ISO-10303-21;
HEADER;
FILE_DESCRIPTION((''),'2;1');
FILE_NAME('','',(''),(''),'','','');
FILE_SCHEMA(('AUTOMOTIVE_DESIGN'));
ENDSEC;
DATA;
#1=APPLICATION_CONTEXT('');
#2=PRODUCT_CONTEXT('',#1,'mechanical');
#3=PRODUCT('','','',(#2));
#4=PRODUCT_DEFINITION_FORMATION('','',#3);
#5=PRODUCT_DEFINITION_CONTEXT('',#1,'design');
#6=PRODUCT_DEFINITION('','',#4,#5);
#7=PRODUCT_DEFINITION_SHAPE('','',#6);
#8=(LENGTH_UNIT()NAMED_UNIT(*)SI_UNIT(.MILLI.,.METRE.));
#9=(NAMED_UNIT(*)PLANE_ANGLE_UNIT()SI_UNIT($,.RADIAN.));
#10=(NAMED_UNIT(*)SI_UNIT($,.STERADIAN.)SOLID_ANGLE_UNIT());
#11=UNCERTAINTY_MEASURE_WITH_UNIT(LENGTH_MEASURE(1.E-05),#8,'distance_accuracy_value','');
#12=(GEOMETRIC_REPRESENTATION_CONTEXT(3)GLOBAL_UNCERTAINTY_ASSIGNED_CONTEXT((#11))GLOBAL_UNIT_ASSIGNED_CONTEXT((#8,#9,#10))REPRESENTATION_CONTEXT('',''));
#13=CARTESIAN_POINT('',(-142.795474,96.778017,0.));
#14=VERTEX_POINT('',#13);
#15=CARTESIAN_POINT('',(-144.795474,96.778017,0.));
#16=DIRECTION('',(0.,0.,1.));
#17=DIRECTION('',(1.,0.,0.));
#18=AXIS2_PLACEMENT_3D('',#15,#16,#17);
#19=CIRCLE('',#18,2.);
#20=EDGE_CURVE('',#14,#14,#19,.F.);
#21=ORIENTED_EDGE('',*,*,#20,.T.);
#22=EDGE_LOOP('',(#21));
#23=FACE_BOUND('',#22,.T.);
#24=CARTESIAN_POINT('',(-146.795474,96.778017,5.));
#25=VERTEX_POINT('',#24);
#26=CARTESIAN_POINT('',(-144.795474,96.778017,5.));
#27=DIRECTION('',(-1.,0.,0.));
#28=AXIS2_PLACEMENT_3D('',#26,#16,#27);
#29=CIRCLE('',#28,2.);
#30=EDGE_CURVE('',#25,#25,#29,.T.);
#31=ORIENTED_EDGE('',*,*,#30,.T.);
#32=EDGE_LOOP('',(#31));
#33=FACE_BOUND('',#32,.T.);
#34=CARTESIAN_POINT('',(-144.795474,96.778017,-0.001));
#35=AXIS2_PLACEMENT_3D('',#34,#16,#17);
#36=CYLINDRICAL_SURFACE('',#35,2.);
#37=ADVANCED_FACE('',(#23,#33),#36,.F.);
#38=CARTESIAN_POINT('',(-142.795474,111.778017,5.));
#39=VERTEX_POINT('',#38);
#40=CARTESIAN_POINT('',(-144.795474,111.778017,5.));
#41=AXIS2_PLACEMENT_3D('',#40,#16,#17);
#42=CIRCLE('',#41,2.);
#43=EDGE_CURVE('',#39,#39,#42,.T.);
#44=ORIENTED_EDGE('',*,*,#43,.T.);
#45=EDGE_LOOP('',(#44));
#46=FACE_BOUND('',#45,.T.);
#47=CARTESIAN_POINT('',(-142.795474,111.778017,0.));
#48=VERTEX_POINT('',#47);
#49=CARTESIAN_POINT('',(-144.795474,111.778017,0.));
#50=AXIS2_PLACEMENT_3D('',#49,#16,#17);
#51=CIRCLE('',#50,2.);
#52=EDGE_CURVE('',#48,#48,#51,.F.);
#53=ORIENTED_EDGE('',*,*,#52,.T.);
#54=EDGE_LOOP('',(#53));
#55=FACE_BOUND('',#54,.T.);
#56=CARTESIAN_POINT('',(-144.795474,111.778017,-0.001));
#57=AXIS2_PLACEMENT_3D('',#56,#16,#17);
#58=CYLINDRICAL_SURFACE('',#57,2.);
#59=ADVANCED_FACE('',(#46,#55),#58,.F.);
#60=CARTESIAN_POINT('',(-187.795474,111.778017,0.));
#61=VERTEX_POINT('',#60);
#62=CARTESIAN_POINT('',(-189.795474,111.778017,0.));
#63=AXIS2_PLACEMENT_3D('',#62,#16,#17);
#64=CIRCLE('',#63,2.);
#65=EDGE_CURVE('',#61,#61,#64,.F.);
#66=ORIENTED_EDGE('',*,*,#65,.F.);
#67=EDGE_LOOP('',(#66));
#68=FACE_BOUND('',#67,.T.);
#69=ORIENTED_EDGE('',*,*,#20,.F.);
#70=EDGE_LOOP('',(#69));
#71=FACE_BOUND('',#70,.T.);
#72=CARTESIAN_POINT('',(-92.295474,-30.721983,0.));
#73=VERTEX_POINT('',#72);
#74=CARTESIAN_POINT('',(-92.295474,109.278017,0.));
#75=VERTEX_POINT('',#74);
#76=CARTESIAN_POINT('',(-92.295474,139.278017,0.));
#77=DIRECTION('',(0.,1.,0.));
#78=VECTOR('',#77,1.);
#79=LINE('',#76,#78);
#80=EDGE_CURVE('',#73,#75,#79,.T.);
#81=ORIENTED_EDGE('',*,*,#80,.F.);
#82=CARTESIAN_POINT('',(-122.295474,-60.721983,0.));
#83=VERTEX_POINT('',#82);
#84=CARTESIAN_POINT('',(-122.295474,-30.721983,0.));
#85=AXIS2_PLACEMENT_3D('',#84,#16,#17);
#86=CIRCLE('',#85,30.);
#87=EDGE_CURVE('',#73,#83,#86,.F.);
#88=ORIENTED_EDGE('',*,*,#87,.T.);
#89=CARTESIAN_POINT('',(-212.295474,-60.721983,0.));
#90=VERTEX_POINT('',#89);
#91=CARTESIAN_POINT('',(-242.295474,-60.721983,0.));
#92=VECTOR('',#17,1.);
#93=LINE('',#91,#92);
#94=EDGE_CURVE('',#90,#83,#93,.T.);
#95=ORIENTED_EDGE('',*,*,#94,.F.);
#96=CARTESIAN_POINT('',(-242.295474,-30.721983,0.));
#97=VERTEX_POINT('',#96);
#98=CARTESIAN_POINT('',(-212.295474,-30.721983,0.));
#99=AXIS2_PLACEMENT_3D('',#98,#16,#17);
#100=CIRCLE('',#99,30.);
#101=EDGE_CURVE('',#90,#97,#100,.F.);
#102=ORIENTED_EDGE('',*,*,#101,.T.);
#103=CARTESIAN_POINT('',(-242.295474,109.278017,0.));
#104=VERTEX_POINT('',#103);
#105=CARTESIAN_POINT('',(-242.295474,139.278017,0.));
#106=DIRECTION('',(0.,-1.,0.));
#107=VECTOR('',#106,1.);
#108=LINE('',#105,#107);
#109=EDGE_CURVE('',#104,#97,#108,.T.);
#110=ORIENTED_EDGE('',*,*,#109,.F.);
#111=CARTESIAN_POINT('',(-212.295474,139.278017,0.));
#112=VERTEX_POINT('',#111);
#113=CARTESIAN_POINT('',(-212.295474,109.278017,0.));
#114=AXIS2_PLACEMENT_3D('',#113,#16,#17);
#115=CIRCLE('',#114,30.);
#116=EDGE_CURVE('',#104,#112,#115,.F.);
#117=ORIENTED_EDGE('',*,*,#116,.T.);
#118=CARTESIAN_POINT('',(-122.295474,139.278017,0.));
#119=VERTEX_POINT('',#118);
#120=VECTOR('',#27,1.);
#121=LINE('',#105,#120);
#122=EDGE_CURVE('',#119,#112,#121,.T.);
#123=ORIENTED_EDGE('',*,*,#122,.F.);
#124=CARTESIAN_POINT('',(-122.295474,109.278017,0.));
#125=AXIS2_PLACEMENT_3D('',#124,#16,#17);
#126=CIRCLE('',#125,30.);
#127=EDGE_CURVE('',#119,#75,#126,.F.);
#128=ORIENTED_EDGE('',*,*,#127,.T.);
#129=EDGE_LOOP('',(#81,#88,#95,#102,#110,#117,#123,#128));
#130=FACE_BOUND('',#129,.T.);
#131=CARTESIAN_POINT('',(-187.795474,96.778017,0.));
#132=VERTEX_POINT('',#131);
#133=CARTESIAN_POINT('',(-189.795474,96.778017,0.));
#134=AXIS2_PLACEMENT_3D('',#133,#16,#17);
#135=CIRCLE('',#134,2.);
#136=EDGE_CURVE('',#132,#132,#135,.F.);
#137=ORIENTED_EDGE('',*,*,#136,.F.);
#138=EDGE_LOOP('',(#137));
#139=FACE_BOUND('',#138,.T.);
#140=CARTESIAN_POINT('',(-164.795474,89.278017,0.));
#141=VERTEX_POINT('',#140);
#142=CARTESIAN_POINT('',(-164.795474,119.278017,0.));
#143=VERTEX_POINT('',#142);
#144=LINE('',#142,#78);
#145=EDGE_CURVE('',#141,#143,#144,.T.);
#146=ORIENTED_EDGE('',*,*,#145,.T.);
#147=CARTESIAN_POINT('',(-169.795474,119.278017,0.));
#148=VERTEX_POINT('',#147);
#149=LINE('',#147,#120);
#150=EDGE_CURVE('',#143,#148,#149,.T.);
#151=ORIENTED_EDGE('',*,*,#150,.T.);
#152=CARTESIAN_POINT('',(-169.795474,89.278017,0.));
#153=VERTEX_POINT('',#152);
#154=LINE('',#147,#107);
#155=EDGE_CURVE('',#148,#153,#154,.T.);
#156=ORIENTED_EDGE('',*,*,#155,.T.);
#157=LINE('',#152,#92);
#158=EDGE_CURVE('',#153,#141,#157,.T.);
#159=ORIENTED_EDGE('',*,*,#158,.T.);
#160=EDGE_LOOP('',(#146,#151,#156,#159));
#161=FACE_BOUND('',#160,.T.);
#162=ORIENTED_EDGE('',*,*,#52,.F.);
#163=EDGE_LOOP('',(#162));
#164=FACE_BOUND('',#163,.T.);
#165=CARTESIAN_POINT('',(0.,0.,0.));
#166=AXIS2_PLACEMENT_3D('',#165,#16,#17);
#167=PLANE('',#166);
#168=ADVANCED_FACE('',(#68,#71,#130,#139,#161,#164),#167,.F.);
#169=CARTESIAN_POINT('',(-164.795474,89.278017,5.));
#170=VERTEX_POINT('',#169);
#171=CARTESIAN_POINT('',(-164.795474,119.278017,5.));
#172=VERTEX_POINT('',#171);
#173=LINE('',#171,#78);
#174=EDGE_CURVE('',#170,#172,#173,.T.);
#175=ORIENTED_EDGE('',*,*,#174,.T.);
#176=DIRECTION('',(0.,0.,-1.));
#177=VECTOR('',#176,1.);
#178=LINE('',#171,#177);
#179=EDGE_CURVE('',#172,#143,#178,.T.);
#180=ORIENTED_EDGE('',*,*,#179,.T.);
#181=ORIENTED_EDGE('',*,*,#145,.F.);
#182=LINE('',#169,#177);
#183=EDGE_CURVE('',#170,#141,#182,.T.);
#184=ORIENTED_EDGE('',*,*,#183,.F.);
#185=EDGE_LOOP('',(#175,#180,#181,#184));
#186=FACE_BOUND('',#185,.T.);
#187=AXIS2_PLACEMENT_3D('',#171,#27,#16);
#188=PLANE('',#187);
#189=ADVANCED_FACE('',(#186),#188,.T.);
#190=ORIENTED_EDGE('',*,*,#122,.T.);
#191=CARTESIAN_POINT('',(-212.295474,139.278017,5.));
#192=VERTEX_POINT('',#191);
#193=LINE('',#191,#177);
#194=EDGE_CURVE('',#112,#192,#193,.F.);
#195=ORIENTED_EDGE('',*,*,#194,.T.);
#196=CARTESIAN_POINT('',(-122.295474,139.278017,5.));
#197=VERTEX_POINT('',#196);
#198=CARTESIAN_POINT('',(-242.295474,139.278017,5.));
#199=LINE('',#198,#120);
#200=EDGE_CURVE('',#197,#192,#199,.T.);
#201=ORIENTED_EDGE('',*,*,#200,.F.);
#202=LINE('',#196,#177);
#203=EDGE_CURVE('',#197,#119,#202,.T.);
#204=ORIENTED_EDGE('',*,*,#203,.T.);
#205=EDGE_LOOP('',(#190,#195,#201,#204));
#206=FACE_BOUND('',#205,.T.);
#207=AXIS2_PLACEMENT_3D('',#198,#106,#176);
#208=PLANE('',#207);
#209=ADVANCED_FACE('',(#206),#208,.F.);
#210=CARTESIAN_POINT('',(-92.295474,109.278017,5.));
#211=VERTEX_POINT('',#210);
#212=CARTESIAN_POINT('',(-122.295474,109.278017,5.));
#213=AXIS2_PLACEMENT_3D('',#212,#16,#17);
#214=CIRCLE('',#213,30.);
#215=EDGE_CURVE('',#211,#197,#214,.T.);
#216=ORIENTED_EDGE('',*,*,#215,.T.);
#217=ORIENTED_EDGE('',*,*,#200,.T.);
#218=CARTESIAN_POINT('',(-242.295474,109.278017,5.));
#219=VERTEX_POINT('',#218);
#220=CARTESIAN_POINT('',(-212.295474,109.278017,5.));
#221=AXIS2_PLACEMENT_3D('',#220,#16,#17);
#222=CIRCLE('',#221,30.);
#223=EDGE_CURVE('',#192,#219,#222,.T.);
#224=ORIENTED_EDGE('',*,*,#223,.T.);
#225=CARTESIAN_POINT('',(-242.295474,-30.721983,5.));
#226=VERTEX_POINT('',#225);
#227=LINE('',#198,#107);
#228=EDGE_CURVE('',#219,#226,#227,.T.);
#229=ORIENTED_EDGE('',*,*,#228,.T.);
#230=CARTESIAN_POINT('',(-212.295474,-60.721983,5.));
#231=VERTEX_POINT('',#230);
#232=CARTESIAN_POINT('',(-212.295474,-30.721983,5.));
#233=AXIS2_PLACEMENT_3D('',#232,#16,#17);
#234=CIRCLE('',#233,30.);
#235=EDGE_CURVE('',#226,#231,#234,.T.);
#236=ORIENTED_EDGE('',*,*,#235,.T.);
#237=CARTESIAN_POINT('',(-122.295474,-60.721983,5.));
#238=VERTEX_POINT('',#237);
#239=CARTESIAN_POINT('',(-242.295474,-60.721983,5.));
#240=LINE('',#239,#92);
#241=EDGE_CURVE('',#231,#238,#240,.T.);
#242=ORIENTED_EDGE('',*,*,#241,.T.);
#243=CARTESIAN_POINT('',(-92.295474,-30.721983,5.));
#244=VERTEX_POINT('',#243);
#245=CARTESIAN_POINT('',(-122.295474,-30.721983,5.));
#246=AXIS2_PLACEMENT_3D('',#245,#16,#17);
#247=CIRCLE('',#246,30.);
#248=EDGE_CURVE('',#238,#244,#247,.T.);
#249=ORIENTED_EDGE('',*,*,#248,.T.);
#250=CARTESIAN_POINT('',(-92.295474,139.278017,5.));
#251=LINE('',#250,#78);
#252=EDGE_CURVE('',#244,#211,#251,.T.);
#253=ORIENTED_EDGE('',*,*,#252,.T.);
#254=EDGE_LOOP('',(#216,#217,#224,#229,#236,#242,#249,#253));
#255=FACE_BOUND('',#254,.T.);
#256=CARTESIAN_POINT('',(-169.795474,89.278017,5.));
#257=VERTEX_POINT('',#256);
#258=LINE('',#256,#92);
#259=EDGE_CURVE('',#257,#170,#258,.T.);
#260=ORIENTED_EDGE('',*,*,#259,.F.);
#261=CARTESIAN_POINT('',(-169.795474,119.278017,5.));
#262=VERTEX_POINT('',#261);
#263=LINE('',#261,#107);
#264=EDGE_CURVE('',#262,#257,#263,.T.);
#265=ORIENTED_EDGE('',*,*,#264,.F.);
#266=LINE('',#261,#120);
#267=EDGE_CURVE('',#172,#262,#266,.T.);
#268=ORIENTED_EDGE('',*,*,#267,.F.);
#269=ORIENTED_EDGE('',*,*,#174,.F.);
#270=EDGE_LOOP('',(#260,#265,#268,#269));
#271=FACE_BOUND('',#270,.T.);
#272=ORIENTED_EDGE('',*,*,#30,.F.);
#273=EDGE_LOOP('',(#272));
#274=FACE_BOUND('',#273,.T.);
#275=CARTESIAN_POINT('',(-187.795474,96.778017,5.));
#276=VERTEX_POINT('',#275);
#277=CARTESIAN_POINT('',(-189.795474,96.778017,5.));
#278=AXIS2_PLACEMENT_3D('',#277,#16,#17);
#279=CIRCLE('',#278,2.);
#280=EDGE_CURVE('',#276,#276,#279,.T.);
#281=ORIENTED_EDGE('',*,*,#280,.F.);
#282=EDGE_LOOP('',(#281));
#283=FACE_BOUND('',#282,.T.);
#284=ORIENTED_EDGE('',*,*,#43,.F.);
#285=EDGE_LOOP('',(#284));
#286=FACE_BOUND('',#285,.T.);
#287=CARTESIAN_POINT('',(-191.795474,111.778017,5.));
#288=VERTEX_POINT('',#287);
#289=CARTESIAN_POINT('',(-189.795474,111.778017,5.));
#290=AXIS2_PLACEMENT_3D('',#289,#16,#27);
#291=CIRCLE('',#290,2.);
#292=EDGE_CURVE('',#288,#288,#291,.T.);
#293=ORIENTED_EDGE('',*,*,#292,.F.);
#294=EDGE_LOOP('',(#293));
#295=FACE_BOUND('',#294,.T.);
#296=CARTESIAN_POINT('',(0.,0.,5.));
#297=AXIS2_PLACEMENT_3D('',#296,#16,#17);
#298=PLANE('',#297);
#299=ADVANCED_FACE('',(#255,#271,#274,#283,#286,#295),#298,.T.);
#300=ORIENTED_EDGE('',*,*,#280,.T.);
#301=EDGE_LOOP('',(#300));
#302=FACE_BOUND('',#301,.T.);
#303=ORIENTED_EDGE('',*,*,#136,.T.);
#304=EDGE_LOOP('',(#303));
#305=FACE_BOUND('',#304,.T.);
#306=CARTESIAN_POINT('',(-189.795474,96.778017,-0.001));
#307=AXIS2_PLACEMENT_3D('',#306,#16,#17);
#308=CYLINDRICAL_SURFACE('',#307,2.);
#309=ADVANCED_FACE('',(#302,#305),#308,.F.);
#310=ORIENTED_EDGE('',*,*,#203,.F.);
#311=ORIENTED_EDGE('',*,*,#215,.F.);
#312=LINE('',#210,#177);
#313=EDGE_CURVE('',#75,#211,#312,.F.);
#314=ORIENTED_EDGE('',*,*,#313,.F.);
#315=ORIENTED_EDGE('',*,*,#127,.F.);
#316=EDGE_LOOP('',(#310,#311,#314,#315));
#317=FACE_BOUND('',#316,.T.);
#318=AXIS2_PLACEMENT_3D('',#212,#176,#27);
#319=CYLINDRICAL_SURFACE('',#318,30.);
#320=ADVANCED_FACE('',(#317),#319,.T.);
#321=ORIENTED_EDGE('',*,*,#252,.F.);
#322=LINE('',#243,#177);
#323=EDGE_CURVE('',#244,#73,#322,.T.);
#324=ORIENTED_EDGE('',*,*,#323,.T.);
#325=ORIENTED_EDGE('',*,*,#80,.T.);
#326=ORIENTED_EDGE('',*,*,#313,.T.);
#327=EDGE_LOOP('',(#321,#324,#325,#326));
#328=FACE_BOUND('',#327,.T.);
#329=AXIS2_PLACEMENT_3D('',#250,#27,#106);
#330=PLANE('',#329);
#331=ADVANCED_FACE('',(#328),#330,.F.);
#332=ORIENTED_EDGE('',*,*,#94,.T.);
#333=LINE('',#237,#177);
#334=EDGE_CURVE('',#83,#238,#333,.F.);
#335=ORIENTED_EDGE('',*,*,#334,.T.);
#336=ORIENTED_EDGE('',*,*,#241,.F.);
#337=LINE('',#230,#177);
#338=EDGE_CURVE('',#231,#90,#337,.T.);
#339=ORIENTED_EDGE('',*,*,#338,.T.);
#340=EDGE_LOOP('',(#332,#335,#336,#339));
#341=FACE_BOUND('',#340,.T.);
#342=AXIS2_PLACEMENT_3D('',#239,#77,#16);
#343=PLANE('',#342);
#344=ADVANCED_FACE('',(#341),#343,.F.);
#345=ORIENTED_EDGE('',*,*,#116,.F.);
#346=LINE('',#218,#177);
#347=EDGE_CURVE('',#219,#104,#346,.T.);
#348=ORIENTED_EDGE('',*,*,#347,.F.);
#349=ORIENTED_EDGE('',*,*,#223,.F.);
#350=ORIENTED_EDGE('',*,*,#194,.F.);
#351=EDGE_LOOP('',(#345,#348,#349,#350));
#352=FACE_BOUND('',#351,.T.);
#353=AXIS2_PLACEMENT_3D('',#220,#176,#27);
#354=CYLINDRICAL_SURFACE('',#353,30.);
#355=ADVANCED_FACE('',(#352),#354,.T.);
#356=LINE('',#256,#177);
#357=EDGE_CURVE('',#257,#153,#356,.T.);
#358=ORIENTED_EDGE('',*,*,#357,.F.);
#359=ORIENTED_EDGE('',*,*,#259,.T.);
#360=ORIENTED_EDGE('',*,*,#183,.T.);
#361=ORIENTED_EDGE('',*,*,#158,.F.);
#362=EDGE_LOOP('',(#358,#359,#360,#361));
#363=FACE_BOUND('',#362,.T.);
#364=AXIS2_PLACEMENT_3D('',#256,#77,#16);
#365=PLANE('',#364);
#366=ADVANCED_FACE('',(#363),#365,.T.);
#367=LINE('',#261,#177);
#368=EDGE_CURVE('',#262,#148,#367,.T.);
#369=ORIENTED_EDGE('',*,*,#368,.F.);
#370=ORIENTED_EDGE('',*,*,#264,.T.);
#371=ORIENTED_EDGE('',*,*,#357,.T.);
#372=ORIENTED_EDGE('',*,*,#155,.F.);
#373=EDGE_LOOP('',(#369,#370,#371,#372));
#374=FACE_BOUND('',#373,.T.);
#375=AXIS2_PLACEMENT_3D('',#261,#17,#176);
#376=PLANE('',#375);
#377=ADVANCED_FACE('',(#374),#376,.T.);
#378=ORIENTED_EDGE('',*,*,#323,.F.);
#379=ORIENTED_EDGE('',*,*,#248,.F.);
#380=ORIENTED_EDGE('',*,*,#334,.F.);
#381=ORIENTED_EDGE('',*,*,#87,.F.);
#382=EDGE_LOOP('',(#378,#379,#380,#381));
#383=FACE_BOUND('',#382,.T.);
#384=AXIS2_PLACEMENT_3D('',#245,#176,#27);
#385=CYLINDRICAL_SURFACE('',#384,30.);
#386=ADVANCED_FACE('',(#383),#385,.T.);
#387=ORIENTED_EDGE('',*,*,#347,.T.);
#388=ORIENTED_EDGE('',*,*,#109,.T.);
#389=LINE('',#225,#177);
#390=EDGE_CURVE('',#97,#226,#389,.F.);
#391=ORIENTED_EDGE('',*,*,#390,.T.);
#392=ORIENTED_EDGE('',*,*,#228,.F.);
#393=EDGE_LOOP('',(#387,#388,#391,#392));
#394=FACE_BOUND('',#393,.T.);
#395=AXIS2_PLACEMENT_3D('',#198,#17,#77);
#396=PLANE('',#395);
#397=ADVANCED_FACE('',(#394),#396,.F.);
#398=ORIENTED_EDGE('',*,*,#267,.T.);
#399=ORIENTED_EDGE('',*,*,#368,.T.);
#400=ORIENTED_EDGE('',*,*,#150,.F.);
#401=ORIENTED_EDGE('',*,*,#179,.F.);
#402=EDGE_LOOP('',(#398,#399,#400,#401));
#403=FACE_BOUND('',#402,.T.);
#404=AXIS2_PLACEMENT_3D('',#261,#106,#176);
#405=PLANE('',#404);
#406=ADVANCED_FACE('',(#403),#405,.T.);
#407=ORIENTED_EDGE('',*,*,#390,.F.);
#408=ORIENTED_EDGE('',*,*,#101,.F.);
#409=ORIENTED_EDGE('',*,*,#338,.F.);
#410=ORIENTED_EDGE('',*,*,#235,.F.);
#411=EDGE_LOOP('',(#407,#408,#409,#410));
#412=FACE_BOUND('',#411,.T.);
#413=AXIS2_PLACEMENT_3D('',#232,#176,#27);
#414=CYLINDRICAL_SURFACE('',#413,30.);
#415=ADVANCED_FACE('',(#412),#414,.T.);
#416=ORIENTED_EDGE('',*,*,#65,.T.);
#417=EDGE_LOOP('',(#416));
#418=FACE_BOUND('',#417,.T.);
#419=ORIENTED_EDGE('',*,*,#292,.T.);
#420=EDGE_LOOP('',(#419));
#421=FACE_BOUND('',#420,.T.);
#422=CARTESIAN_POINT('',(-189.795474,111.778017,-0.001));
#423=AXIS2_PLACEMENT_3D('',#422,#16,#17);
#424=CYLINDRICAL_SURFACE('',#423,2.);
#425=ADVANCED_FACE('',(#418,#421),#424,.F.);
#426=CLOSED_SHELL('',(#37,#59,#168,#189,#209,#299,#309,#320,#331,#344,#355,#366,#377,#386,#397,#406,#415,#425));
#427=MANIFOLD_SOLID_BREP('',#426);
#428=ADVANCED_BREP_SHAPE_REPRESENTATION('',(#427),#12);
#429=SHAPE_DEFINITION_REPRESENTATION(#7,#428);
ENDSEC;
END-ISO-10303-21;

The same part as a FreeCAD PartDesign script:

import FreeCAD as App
import Part
import Sketcher

V = App.Vector


def edges_at(feature, points):
    """Names of the edges that pass closest to the given points."""
    edges = feature.Shape.Edges
    near = lambda p: min(range(len(edges)), key=lambda i: edges[i].distToShape(Part.Vertex(*p))[0])
    return sorted({f"Edge{near(p) + 1}" for p in points})


def add_polygon(sketch, points):
    """Adds a closed chain of lines whose ends are joined by coincident constraints."""
    first, n = sketch.GeometryCount, len(points)
    for a, b in zip(points, points[1:] + points[:1]):
        sketch.addGeometry(Part.LineSegment(App.Vector(*a, 0), App.Vector(*b, 0)), False)
    for i in range(n):
        sketch.addConstraint(Sketcher.Constraint("Coincident", first + i, 2, first + (i + 1) % n, 1))

doc = App.newDocument("Part")
params = doc.addObject("Spreadsheet::Sheet", "Params")
for row, (alias, value) in enumerate([
    ("sketch1_width", "150 mm"),
    ("sketch1_width2", "5 mm"),
    ("sketch1_height", "200 mm"),
    ("sketch1_height2", "30 mm"),
    ("pad1_length", "5 mm"),
    ("fillet_radius", "30 mm"),
    ("sketch2_diameter", "4 mm"),
    ("sketch3_diameter", "4 mm"),
    ("sketch4_diameter", "4 mm"),
    ("sketch5_diameter", "4 mm"),
], start=1):
    params.set(f"A{row}", alias)
    params.set(f"B{row}", "=" + value)
    params.setAlias(f"B{row}", alias)

body = doc.addObject("PartDesign::Body", "Body")

# Sketch on XY plane
sketch1 = doc.addObject("Sketcher::SketchObject", "Sketch")
body.addObject(sketch1)
sketch1.AttachmentSupport = (doc.XY_Plane, [""])
sketch1.MapMode = "FlatFace"
add_polygon(sketch1, [(-242, 139), (-242, -61), (-92, -61), (-92, 139)])  # lines 0-3
add_polygon(sketch1, [(-165, 89), (-170, 89), (-170, 119), (-165, 119)])  # lines 4-7
sketch1.addConstraint([
    Sketcher.Constraint("Vertical", 0),
    Sketcher.Constraint("Horizontal", 1),
    Sketcher.Constraint("Vertical", 2),
    Sketcher.Constraint("Horizontal", 3),
    Sketcher.Constraint("Horizontal", 4),
    Sketcher.Constraint("Vertical", 5),
    Sketcher.Constraint("Horizontal", 6),
    Sketcher.Constraint("Vertical", 7),
    Sketcher.Constraint("DistanceX", 1, 1, 1, 2, 150.0),
    Sketcher.Constraint("DistanceX", 4, 2, 4, 1, 5.0),
    Sketcher.Constraint("DistanceY", 0, 2, 0, 1, 200.0),
    Sketcher.Constraint("DistanceY", 5, 1, 5, 2, 30.0),
    Sketcher.Constraint("DistanceY", 4, 2, 3, 2, 50.0),
    Sketcher.Constraint("DistanceX", 3, 2, 4, 2, 72.5),
    Sketcher.Constraint("DistanceX", 0, 2, -1, 1, 242.295474),
    Sketcher.Constraint("DistanceY", 0, 2, -1, 1, 60.721983),
])
sketch1.setExpression("Constraints[16]", "Params.sketch1_width")
sketch1.setExpression("Constraints[17]", "Params.sketch1_width2")
sketch1.setExpression("Constraints[18]", "Params.sketch1_height")
sketch1.setExpression("Constraints[19]", "Params.sketch1_height2")
pad1 = doc.addObject("PartDesign::Pad", "Pad")
body.addObject(pad1)
pad1.Profile = sketch1
pad1.setExpression("Length", "Params.pad1_length")
doc.recompute()

fillet = doc.addObject("PartDesign::Fillet", "Fillet")
body.addObject(fillet)
fillet.Base = (pad1, edges_at(pad1, [
    (-242.295, 139.278, 2.5),
    (-92.295, 139.278, 2.5),
    (-92.295, -60.722, 2.5),
    (-242.295, -60.722, 2.5),
]))
fillet.setExpression("Radius", "Params.fillet_radius")

# Sketch on XY plane
sketch2 = doc.addObject("Sketcher::SketchObject", "Sketch001")
body.addObject(sketch2)
sketch2.AttachmentSupport = (doc.XY_Plane, [""])
sketch2.MapMode = "FlatFace"
sketch2.AttachmentOffset = App.Placement(V(0, 0, 5), App.Rotation())
sketch2.addGeometry(Part.Circle(V(-144.8, 111.8, 0), V(0, 0, 1), 2), False)
sketch2.addConstraint([
    Sketcher.Constraint("Diameter", 0, 4.0),
    Sketcher.Constraint("DistanceX", 0, 3, -1, 1, 144.795474),
    Sketcher.Constraint("DistanceY", -1, 1, 0, 3, 111.778017),
])
sketch2.setExpression("Constraints[0]", "Params.sketch2_diameter")
pocket1 = doc.addObject("PartDesign::Pocket", "Pocket")
body.addObject(pocket1)
pocket1.Profile = sketch2
pocket1.Type = "UpToFirst"

# Sketch on XY plane
sketch3 = doc.addObject("Sketcher::SketchObject", "Sketch002")
body.addObject(sketch3)
sketch3.AttachmentSupport = (doc.XY_Plane, [""])
sketch3.MapMode = "FlatFace"
sketch3.AttachmentOffset = App.Placement(V(0, 0, 5), App.Rotation())
sketch3.addGeometry(Part.Circle(V(-189.8, 111.8, 0), V(0, 0, 1), 2), False)
sketch3.addConstraint([
    Sketcher.Constraint("Diameter", 0, 4.0),
    Sketcher.Constraint("DistanceX", 0, 3, -1, 1, 189.795474),
    Sketcher.Constraint("DistanceY", -1, 1, 0, 3, 111.778017),
])
sketch3.setExpression("Constraints[0]", "Params.sketch3_diameter")
pocket2 = doc.addObject("PartDesign::Pocket", "Pocket001")
body.addObject(pocket2)
pocket2.Profile = sketch3
pocket2.Type = "UpToFirst"

# Sketch on XY plane
sketch4 = doc.addObject("Sketcher::SketchObject", "Sketch003")
body.addObject(sketch4)
sketch4.AttachmentSupport = (doc.XY_Plane, [""])
sketch4.MapMode = "FlatFace"
sketch4.AttachmentOffset = App.Placement(V(0, 0, 5), App.Rotation())
sketch4.addGeometry(Part.Circle(V(-189.8, 96.8, 0), V(0, 0, 1), 2), False)
sketch4.addConstraint([
    Sketcher.Constraint("Diameter", 0, 4.0),
    Sketcher.Constraint("DistanceX", 0, 3, -1, 1, 189.795474),
    Sketcher.Constraint("DistanceY", -1, 1, 0, 3, 96.778017),
])
sketch4.setExpression("Constraints[0]", "Params.sketch4_diameter")
pocket3 = doc.addObject("PartDesign::Pocket", "Pocket002")
body.addObject(pocket3)
pocket3.Profile = sketch4
pocket3.Type = "UpToFirst"

# Sketch on XY plane
sketch5 = doc.addObject("Sketcher::SketchObject", "Sketch004")
body.addObject(sketch5)
sketch5.AttachmentSupport = (doc.XY_Plane, [""])
sketch5.MapMode = "FlatFace"
sketch5.AttachmentOffset = App.Placement(V(0, 0, 5), App.Rotation())
sketch5.addGeometry(Part.Circle(V(-144.8, 96.8, 0), V(0, 0, 1), 2), False)
sketch5.addConstraint([
    Sketcher.Constraint("Diameter", 0, 4.0),
    Sketcher.Constraint("DistanceX", 0, 3, -1, 1, 144.795474),
    Sketcher.Constraint("DistanceY", -1, 1, 0, 3, 96.778017),
])
sketch5.setExpression("Constraints[0]", "Params.sketch5_diameter")
pocket4 = doc.addObject("PartDesign::Pocket", "Pocket003")
body.addObject(pocket4)
pocket4.Profile = sketch5
pocket4.Type = "UpToFirst"

doc.recompute()
